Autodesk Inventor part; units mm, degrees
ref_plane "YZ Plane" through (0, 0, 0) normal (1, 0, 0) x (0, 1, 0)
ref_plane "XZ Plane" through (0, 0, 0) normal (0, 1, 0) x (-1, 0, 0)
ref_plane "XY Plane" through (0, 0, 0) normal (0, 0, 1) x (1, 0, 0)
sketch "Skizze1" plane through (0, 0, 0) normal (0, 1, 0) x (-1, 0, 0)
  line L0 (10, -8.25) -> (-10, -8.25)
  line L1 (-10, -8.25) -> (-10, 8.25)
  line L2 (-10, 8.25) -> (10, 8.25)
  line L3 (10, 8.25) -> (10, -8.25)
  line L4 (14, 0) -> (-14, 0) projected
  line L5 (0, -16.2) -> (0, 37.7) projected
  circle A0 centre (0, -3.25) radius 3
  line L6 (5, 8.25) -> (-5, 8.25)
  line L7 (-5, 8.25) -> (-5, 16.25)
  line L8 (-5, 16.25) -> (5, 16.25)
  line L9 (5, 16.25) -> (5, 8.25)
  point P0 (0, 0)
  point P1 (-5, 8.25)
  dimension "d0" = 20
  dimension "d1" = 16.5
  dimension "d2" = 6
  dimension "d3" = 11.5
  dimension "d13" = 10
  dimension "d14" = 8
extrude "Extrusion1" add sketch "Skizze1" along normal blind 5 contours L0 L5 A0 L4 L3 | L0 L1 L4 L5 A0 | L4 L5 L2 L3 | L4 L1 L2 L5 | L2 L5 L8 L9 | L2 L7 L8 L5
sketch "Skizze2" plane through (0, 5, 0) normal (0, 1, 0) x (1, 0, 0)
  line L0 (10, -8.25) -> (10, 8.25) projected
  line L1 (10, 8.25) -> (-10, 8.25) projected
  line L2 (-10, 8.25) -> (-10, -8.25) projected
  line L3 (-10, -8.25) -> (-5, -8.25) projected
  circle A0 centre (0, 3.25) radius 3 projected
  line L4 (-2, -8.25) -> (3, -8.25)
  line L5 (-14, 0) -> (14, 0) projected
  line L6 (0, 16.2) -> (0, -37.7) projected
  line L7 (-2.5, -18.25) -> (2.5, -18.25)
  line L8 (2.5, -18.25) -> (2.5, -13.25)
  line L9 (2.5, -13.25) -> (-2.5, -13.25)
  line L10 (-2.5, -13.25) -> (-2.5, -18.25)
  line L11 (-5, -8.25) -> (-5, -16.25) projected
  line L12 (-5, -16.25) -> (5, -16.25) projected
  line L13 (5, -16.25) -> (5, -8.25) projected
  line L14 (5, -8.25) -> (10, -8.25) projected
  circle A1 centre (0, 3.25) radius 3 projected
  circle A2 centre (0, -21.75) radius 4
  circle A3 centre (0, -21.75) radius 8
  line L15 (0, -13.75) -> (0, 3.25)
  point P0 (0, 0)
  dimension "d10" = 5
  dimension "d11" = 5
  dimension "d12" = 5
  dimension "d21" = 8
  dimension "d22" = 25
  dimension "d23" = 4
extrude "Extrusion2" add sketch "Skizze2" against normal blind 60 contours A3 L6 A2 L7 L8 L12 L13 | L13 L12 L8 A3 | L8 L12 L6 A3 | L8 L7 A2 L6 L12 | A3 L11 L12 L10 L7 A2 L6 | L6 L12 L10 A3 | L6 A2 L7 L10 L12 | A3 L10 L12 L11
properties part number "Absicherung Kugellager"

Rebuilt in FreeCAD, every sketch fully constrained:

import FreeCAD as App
import Part
import Sketcher

V = App.Vector

doc = App.newDocument("Part")
body = doc.addObject("PartDesign::Body", "Body")

# Sketch on XZ plane
sketch1 = body.newObject("Sketcher::SketchObject", "Sketch")
sketch1.AttachmentSupport = (doc.getObject("XZ_Plane"), [""])
sketch1.MapMode = "FlatFace"
sketch1.addGeometry([
    Part.LineSegment(V(-10, -8.2, 0), V(-10, 8.2, 0)),  # 0
    Part.LineSegment(V(-10, 8.2, 0), V(-5, 8.2, 0)),  # 1
    Part.LineSegment(V(-5, 8.2, 0), V(-5, 16.2, 0)),  # 2
    Part.LineSegment(V(-5, 16.2, 0), V(5, 16.2, 0)),  # 3
    Part.LineSegment(V(5, 16.2, 0), V(5, 8.2, 0)),  # 4
    Part.LineSegment(V(5, 8.2, 0), V(10, 8.2, 0)),  # 5
    Part.LineSegment(V(10, 8.2, 0), V(10, -8.2, 0)),  # 6
    Part.LineSegment(V(10, -8.2, 0), V(-10, -8.2, 0)),  # 7
    Part.Circle(V(0, -3.2, 0), V(0, 0, 1), 3),  # 8
], False)
sketch1.addConstraint([
    Sketcher.Constraint("Coincident", 0, 2, 1, 1),
    Sketcher.Constraint("Coincident", 1, 2, 2, 1),
    Sketcher.Constraint("Coincident", 2, 2, 3, 1),
    Sketcher.Constraint("Coincident", 3, 2, 4, 1),
    Sketcher.Constraint("Coincident", 4, 2, 5, 1),
    Sketcher.Constraint("Coincident", 5, 2, 6, 1),
    Sketcher.Constraint("Coincident", 6, 2, 7, 1),
    Sketcher.Constraint("Coincident", 7, 2, 0, 1),
    Sketcher.Constraint("Vertical", 0),
    Sketcher.Constraint("Horizontal", 1),
    Sketcher.Constraint("Vertical", 2),
    Sketcher.Constraint("Horizontal", 3),
    Sketcher.Constraint("Vertical", 4),
    Sketcher.Constraint("Horizontal", 5),
    Sketcher.Constraint("Vertical", 6),
    Sketcher.Constraint("Horizontal", 7),
    Sketcher.Constraint("Symmetric", 0, 2, 6, 2, -1, 1),
    Sketcher.Constraint("Symmetric", 1, 2, 4, 2, -2),
    Sketcher.Constraint("PointOnObject", 8, 3, -2),
    Sketcher.Constraint("Diameter", 8, 6.0),
    Sketcher.Constraint("DistanceX", 3, 1, 3, 2, 10.0),
    Sketcher.Constraint("DistanceX", 7, 2, 7, 1, 20.0),
    Sketcher.Constraint("DistanceY", 2, 1, 2, 2, 8.0),
    Sketcher.Constraint("DistanceY", 0, 1, 0, 2, 16.5),
    Sketcher.Constraint("DistanceY", 8, 3, 0, 2, 11.5),
])
pad1 = body.newObject("PartDesign::Pad", "Pad")
pad1.Profile = sketch1
pad1.Length = 5
pad1.Reversed = True

# Sketch on XZ plane
sketch2 = body.newObject("Sketcher::SketchObject", "Sketch001")
sketch2.AttachmentSupport = (doc.getObject("XZ_Plane"), [""])
sketch2.MapMode = "FlatFace"
sketch2.AttachmentOffset = App.Placement(V(0, 0, -5), App.Rotation())
sketch2.addGeometry([
    Part.Circle(V(0, 21.8, 0), V(0, 0, 1), 8),
    Part.Circle(V(0, 21.8, 0), V(0, 0, 1), 4),
], False)
sketch2.addConstraint([
    Sketcher.Constraint("Coincident", 1, 3, 0, 3),
    Sketcher.Constraint("PointOnObject", 0, 3, -2),
    Sketcher.Constraint("Diameter", 0, 16.0),
    Sketcher.Constraint("Diameter", 1, 8.0),
    Sketcher.Constraint("DistanceY", -1, 1, 0, 3, 21.75),
])
pad2 = body.newObject("PartDesign::Pad", "Pad001")
pad2.Profile = sketch2
pad2.Length = 60

doc.recompute()
